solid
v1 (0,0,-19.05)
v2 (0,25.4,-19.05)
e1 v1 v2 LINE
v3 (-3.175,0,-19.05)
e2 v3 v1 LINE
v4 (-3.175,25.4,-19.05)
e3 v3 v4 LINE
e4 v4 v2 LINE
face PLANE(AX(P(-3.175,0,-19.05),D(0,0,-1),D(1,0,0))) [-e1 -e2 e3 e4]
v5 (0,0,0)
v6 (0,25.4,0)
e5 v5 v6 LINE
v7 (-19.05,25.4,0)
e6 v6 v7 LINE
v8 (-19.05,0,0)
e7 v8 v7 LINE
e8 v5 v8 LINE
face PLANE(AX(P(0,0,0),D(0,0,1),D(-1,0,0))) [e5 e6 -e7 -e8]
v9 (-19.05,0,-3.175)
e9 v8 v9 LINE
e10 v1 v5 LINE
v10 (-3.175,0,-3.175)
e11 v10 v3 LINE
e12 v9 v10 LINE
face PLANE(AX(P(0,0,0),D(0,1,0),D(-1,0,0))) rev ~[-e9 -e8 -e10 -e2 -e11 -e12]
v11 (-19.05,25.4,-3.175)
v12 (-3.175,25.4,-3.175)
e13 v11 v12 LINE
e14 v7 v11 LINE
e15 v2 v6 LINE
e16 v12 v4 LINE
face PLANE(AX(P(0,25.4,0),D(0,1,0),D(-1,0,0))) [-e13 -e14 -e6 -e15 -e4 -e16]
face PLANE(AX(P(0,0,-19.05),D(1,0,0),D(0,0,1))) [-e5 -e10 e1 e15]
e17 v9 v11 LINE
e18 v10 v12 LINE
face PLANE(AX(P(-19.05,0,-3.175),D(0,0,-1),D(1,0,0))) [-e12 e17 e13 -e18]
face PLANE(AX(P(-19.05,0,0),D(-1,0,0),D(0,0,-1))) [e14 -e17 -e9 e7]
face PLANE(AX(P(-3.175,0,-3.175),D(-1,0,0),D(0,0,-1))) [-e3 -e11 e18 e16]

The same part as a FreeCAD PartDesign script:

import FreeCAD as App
import Part
import Sketcher
from FreeCAD import Vector
Q = App.Units.Quantity


def add_polygon(sketch, points):
    """Adds a closed chain of lines whose ends are joined by coincident constraints."""
    first, n = sketch.GeometryCount, len(points)
    for a, b in zip(points, points[1:] + points[:1]):
        sketch.addGeometry(Part.LineSegment(App.Vector(*a, 0), App.Vector(*b, 0)), False)
    for i in range(n):
        sketch.addConstraint(Sketcher.Constraint("Coincident", first + i, 2, first + (i + 1) % n, 1))

doc = App.newDocument("Part")
params = doc.addObject("Spreadsheet::Sheet", "Params")
for row, (alias, value) in enumerate([
    ("sketch1_width", "0.75 in"),
    ("sketch1_width2", "0.125 in"),
    ("pad1_length", "1 in"),
], start=1):
    params.set(f"A{row}", alias)
    params.set(f"B{row}", "=" + value)
    params.setAlias(f"B{row}", alias)

body = doc.addObject("PartDesign::Body", "Body")

sketch1 = body.newObject("Sketcher::SketchObject", "Sketch")
sketch1.AttachmentSupport = (doc.getObject("XZ_Plane"), [""])
sketch1.MapMode = "FlatFace"
add_polygon(sketch1, [(-19.1, 0), (0, 0), (0, -19.1), (-3.2, -19.1), (-3.2, -3.2), (-19.1, -3.2)])
sketch1.addConstraint(Sketcher.Constraint("Horizontal", 0))
sketch1.addConstraint(Sketcher.Constraint("Vertical", 1))
sketch1.addConstraint(Sketcher.Constraint("Horizontal", 2))
sketch1.addConstraint(Sketcher.Constraint("Vertical", 3))
sketch1.addConstraint(Sketcher.Constraint("Horizontal", 4))
sketch1.addConstraint(Sketcher.Constraint("Vertical", 5))
sketch1.addConstraint(Sketcher.Constraint("Coincident", 0, 2, -1, 1))
sketch1.addConstraint(Sketcher.Constraint("Equal", 0, 1))
sketch1.addConstraint(Sketcher.Constraint("Equal", 4, 3))
sketch1.addConstraint(Sketcher.Constraint("DistanceX", 0, 1, 0, 2, Q("0.75 in")))
sketch1.addConstraint(Sketcher.Constraint("DistanceX", 2, 2, 2, 1, Q("0.125 in")))
sketch1.setExpression("Constraints[15]", "Params.sketch1_width")
sketch1.setExpression("Constraints[16]", "Params.sketch1_width2")
pad1 = body.newObject("PartDesign::Pad", "Pad")
pad1.Profile = sketch1
pad1.setExpression("Length", "Params.pad1_length")
pad1.Reversed = True

doc.recompute()
